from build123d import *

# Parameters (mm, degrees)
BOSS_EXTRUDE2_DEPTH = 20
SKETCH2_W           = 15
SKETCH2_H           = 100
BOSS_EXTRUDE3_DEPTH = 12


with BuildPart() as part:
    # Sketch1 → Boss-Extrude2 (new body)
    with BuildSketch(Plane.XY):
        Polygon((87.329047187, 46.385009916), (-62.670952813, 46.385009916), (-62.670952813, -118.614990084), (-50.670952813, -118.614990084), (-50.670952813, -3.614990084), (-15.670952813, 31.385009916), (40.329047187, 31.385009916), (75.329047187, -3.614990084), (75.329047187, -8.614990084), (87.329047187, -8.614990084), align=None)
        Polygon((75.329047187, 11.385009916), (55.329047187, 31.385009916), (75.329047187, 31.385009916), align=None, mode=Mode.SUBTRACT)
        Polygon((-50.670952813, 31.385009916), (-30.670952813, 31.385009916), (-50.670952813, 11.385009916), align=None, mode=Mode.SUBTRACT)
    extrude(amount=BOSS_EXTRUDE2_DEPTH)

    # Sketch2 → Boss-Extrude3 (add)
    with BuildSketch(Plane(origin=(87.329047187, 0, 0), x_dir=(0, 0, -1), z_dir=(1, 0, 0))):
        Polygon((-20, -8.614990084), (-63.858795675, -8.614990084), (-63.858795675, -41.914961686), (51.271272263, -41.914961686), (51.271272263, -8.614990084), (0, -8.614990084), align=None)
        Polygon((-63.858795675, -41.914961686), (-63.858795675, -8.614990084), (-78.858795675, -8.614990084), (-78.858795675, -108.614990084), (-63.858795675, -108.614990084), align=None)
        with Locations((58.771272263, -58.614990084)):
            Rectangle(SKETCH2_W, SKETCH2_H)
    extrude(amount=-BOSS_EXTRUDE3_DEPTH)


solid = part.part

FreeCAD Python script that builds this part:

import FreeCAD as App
import Part
import Sketcher
from FreeCAD import Vector


def add_polygon(sketch, points):
    """Adds a closed chain of lines whose ends are joined by coincident constraints."""
    first, n = sketch.GeometryCount, len(points)
    for a, b in zip(points, points[1:] + points[:1]):
        sketch.addGeometry(Part.LineSegment(App.Vector(*a, 0), App.Vector(*b, 0)), False)
    for i in range(n):
        sketch.addConstraint(Sketcher.Constraint("Coincident", first + i, 2, first + (i + 1) % n, 1))

doc = App.newDocument("Part")
params = doc.addObject("Spreadsheet::Sheet", "Params")
for row, (alias, value) in enumerate([
    ("sketch1_width", "150 mm"),
    ("sketch1_width2", "12 mm"),
    ("sketch1_width3", "56 mm"),
    ("sketch1_width4", "20 mm"),
    ("sketch1_height", "165 mm"),
    ("pad1_length", "20 mm"),
    ("sketch2_width", "100 mm"),
    ("sketch2_height", "15 mm"),
    ("pad2_length", "12 mm"),
], start=1):
    params.set(f"A{row}", alias)
    params.set(f"B{row}", "=" + value)
    params.setAlias(f"B{row}", alias)

body = doc.addObject("PartDesign::Body", "Body")

# Sketch on XY plane
sketch1 = doc.addObject("Sketcher::SketchObject", "Sketch")
body.addObject(sketch1)
sketch1.AttachmentSupport = (doc.XY_Plane, [""])
sketch1.MapMode = "FlatFace"
add_polygon(sketch1, [(87, 46), (-63, 46), (-63, -119), (-51, -119), (-51, -4), (-16, 31), (40, 31), (75, -4), (75, -9), (87, -9)])  # lines 0-9
add_polygon(sketch1, [(-51, 11), (-51, 31), (-31, 31)])  # lines 10-12
add_polygon(sketch1, [(75, 31), (75, 11), (55, 31)])  # lines 13-15
sketch1.addConstraint(Sketcher.Constraint("Horizontal", 0))
sketch1.addConstraint(Sketcher.Constraint("Vertical", 1))
sketch1.addConstraint(Sketcher.Constraint("Horizontal", 2))
sketch1.addConstraint(Sketcher.Constraint("Vertical", 3))
sketch1.addConstraint(Sketcher.Constraint("Horizontal", 5))
sketch1.addConstraint(Sketcher.Constraint("Vertical", 7))
sketch1.addConstraint(Sketcher.Constraint("Horizontal", 8))
sketch1.addConstraint(Sketcher.Constraint("Vertical", 9))
sketch1.addConstraint(Sketcher.Constraint("Vertical", 10))
sketch1.addConstraint(Sketcher.Constraint("Horizontal", 11))
sketch1.addConstraint(Sketcher.Constraint("Vertical", 13))
sketch1.addConstraint(Sketcher.Constraint("Horizontal", 15))
sketch1.addConstraint(Sketcher.Constraint("Perpendicular", 4, 6))
sketch1.addConstraint(Sketcher.Constraint("Perpendicular", 6, 12))
sketch1.addConstraint(Sketcher.Constraint("Perpendicular", 12, 14))
sketch1.addConstraint(Sketcher.Constraint("Horizontal", 3, 2, 6, 2))
sketch1.addConstraint(Sketcher.Constraint("Horizontal", 5, 2, 10, 2))
sketch1.addConstraint(Sketcher.Constraint("Horizontal", 12, 2, 13, 2))
sketch1.addConstraint(Sketcher.Constraint("Horizontal", 11, 2, 14, 2))
sketch1.addConstraint(Sketcher.Constraint("Vertical", 3, 2, 10, 2))
sketch1.addConstraint(Sketcher.Constraint("Vertical", 7, 2, 13, 2))
sketch1.addConstraint(Sketcher.Constraint("Equal", 2, 8))
sketch1.addConstraint(Sketcher.Constraint("Equal", 11, 15))
sketch1.addConstraint(Sketcher.Constraint("DistanceX", 0, 2, 0, 1, 150.0))
sketch1.addConstraint(Sketcher.Constraint("DistanceX", 2, 1, 2, 2, 12.0))
sketch1.addConstraint(Sketcher.Constraint("DistanceX", 5, 1, 5, 2, 56.0))
sketch1.addConstraint(Sketcher.Constraint("DistanceX", 11, 1, 11, 2, 20.0))
sketch1.addConstraint(Sketcher.Constraint("DistanceY", 1, 2, 1, 1, 165.0))
sketch1.addConstraint(Sketcher.Constraint("DistanceY", 3, 1, 3, 2, 115.0))
sketch1.addConstraint(Sketcher.Constraint("DistanceY", 7, 2, 7, 1, 5.0))
sketch1.addConstraint(Sketcher.Constraint("DistanceY", -1, 1, 0, 2, 46.38501))
sketch1.addConstraint(Sketcher.Constraint("DistanceX", 0, 2, -1, 1, 62.670953))
sketch1.setExpression("Constraints[39]", "Params.sketch1_width")
sketch1.setExpression("Constraints[40]", "Params.sketch1_width2")
sketch1.setExpression("Constraints[41]", "Params.sketch1_width3")
sketch1.setExpression("Constraints[42]", "Params.sketch1_width4")
sketch1.setExpression("Constraints[43]", "Params.sketch1_height")
pad1 = doc.addObject("PartDesign::Pad", "Pad")
body.addObject(pad1)
pad1.Profile = sketch1
pad1.setExpression("Length", "Params.pad1_length")

# Sketch on YZ plane
sketch2 = doc.addObject("Sketcher::SketchObject", "Sketch001")
body.addObject(sketch2)
sketch2.AttachmentSupport = (doc.YZ_Plane, [""])
sketch2.MapMode = "FlatFace"
sketch2.AttachmentOffset = App.Placement(Vector(0, 0, 87.329047), App.Rotation())
add_polygon(sketch2, [(-42, 64), (-42, -51), (-109, -51), (-109, -66), (-9, -66), (-9, 79), (-109, 79), (-109, 64)])  # lines 0-7
sketch2.addConstraint(Sketcher.Constraint("Vertical", 0))
sketch2.addConstraint(Sketcher.Constraint("Horizontal", 1))
sketch2.addConstraint(Sketcher.Constraint("Vertical", 2))
sketch2.addConstraint(Sketcher.Constraint("Horizontal", 3))
sketch2.addConstraint(Sketcher.Constraint("Vertical", 4))
sketch2.addConstraint(Sketcher.Constraint("Horizontal", 5))
sketch2.addConstraint(Sketcher.Constraint("Vertical", 6))
sketch2.addConstraint(Sketcher.Constraint("Horizontal", 7))
sketch2.addConstraint(Sketcher.Constraint("Vertical", 2, 2, 5, 2))
sketch2.addConstraint(Sketcher.Constraint("Equal", 2, 6))
sketch2.addConstraint(Sketcher.Constraint("DistanceX", 3, 1, 3, 2, 100.0))
sketch2.addConstraint(Sketcher.Constraint("DistanceY", 2, 2, 2, 1, 15.0))
sketch2.addConstraint(Sketcher.Constraint("DistanceX", 1, 2, 1, 1, 66.700028))
sketch2.addConstraint(Sketcher.Constraint("DistanceY", 0, 2, 0, 1, 115.130068))
sketch2.addConstraint(Sketcher.Constraint("DistanceX", 0, 2, -1, 1, 41.914962))
sketch2.addConstraint(Sketcher.Constraint("DistanceY", 0, 2, -1, 1, 51.271272))
sketch2.setExpression("Constraints[18]", "Params.sketch2_width")
sketch2.setExpression("Constraints[19]", "Params.sketch2_height")
pad2 = doc.addObject("PartDesign::Pad", "Pad001")
body.addObject(pad2)
pad2.Profile = sketch2
pad2.setExpression("Length", "Params.pad2_length")
pad2.Reversed = True

doc.recompute()
